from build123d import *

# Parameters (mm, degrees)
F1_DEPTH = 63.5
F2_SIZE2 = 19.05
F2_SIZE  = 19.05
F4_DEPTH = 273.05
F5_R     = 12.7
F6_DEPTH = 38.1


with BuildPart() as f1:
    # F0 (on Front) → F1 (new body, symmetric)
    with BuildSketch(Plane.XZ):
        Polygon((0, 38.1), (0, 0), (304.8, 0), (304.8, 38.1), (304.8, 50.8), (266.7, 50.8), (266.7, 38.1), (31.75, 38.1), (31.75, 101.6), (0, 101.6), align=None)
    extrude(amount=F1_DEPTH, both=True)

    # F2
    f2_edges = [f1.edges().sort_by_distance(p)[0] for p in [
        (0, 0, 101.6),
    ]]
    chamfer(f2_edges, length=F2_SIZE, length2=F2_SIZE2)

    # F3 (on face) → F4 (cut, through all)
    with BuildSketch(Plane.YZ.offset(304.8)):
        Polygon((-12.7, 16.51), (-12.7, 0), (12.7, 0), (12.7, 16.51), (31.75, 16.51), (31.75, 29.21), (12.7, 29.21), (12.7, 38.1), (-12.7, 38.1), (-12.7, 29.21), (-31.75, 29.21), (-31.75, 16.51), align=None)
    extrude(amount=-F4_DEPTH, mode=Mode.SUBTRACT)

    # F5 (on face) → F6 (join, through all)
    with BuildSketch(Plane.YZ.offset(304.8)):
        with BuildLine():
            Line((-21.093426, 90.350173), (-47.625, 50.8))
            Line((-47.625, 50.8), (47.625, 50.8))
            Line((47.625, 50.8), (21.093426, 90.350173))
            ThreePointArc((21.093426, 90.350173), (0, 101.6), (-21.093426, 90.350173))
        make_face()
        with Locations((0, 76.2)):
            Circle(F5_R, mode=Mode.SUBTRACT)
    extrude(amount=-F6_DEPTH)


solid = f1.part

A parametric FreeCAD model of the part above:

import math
import FreeCAD as App
import Part
import Sketcher
from FreeCAD import Vector
Q = App.Units.Quantity


def edges_at(feature, points):
    """Names of the edges that pass closest to the given points."""
    edges = feature.Shape.Edges
    near = lambda p: min(range(len(edges)), key=lambda i: edges[i].distToShape(Part.Vertex(*p))[0])
    return sorted({f"Edge{near(p) + 1}" for p in points})

doc = App.newDocument("Part")
body = doc.addObject("PartDesign::Body", "Body")

sketch1 = body.newObject("Sketcher::SketchObject", "Sketch")
sketch1.AttachmentSupport = (doc.getObject("XZ_Plane"), [""])
sketch1.MapMode = "FlatFace"
sketch1.addGeometry([
    Part.LineSegment(Vector(0, 0, 0), Vector(305, 0, 0)),
    Part.LineSegment(Vector(305, 0, 0), Vector(305, 51, 0)),
    Part.LineSegment(Vector(305, 51, 0), Vector(267, 51, 0)),
    Part.LineSegment(Vector(267, 51, 0), Vector(267, 38, 0)),
    Part.LineSegment(Vector(267, 38, 0), Vector(32, 38, 0)),
    Part.LineSegment(Vector(32, 38, 0), Vector(32, 102, 0)),
    Part.LineSegment(Vector(32, 102, 0), Vector(0, 102, 0)),
    Part.LineSegment(Vector(0, 102, 0), Vector(0, 0, 0)),
], False)
sketch1.addConstraint([
    Sketcher.Constraint("Coincident", 0, 2, 1, 1),
    Sketcher.Constraint("Coincident", 1, 2, 2, 1),
    Sketcher.Constraint("Coincident", 2, 2, 3, 1),
    Sketcher.Constraint("Coincident", 3, 2, 4, 1),
    Sketcher.Constraint("Coincident", 4, 2, 5, 1),
    Sketcher.Constraint("Coincident", 5, 2, 6, 1),
    Sketcher.Constraint("Coincident", 6, 2, 7, 1),
    Sketcher.Constraint("Coincident", 7, 2, 0, 1),
    Sketcher.Constraint("Horizontal", 0),
    Sketcher.Constraint("Vertical", 1),
    Sketcher.Constraint("Horizontal", 2),
    Sketcher.Constraint("Vertical", 3),
    Sketcher.Constraint("Horizontal", 4),
    Sketcher.Constraint("Vertical", 5),
    Sketcher.Constraint("Horizontal", 6),
    Sketcher.Constraint("Vertical", 7),
    Sketcher.Constraint("Coincident", 7, 2, -1, 1),
    Sketcher.Constraint("DistanceX", 0, 1, 0, 2, Q("12 in")),
    Sketcher.Constraint("DistanceY", 1, 1, 1, 2, Q("2 in")),
    Sketcher.Constraint("DistanceY", 7, 2, 7, 1, Q("4 in")),
    Sketcher.Constraint("DistanceX", 2, 2, 2, 1, Q("1.5 in")),
    Sketcher.Constraint("DistanceY", 3, 2, 3, 1, Q("0.5 in")),
    Sketcher.Constraint("DistanceX", 4, 2, 4, 1, Q("9.25 in")),
])
pad1 = body.newObject("PartDesign::Pad", "Pad")
pad1.Profile = sketch1
pad1.Length = Q("5 in")
pad1.Midplane = True
doc.recompute()

chamfer = body.newObject("PartDesign::Chamfer", "Chamfer")
chamfer.Base = (pad1, edges_at(pad1, [(0, 0, 101.6)]))
chamfer.ChamferType = "Two distances"
chamfer.Size = Q("0.75 in")
chamfer.Size2 = Q("0.75 in")

sketch2 = body.newObject("Sketcher::SketchObject", "Sketch001")
sketch2.AttachmentSupport = (doc.getObject("YZ_Plane"), [""])
sketch2.MapMode = "FlatFace"
sketch2.AttachmentOffset = App.Placement(Vector(0, 0, 12 * 25.4), App.Rotation())
sketch2.addGeometry([
    Part.LineSegment(Vector(-13, 17, 0), Vector(-13, 0, 0)),
    Part.LineSegment(Vector(-13, 0, 0), Vector(13, 0, 0)),
    Part.LineSegment(Vector(13, 0, 0), Vector(13, 17, 0)),
    Part.LineSegment(Vector(13, 17, 0), Vector(32, 17, 0)),
    Part.LineSegment(Vector(32, 17, 0), Vector(32, 29, 0)),
    Part.LineSegment(Vector(32, 29, 0), Vector(13, 29, 0)),
    Part.LineSegment(Vector(13, 29, 0), Vector(13, 38, 0)),
    Part.LineSegment(Vector(13, 38, 0), Vector(-13, 38, 0)),
    Part.LineSegment(Vector(-13, 38, 0), Vector(-13, 29, 0)),
    Part.LineSegment(Vector(-13, 29, 0), Vector(-32, 29, 0)),
    Part.LineSegment(Vector(-32, 29, 0), Vector(-32, 17, 0)),
    Part.LineSegment(Vector(-32, 17, 0), Vector(-13, 17, 0)),
], False)
sketch2.addConstraint([
    Sketcher.Constraint("Coincident", 0, 2, 1, 1),
    Sketcher.Constraint("Coincident", 1, 2, 2, 1),
    Sketcher.Constraint("Coincident", 2, 2, 3, 1),
    Sketcher.Constraint("Coincident", 3, 2, 4, 1),
    Sketcher.Constraint("Coincident", 4, 2, 5, 1),
    Sketcher.Constraint("Coincident", 5, 2, 6, 1),
    Sketcher.Constraint("Coincident", 6, 2, 7, 1),
    Sketcher.Constraint("Coincident", 7, 2, 8, 1),
    Sketcher.Constraint("Coincident", 8, 2, 9, 1),
    Sketcher.Constraint("Coincident", 9, 2, 10, 1),
    Sketcher.Constraint("Coincident", 10, 2, 11, 1),
    Sketcher.Constraint("Coincident", 11, 2, 0, 1),
    Sketcher.Constraint("Vertical", 0),
    Sketcher.Constraint("Horizontal", 1),
    Sketcher.Constraint("Vertical", 2),
    Sketcher.Constraint("Horizontal", 3),
    Sketcher.Constraint("Vertical", 4),
    Sketcher.Constraint("Horizontal", 5),
    Sketcher.Constraint("Vertical", 6),
    Sketcher.Constraint("Horizontal", 7),
    Sketcher.Constraint("Vertical", 8),
    Sketcher.Constraint("Horizontal", 9),
    Sketcher.Constraint("Vertical", 10),
    Sketcher.Constraint("Horizontal", 11),
    Sketcher.Constraint("Symmetric", 0, 2, 1, 2, -1, 1),
    Sketcher.Constraint("Symmetric", 5, 2, 8, 2, -2),
    Sketcher.Constraint("Symmetric", 3, 2, 10, 2, -2),
    Sketcher.Constraint("Vertical", 2, 2, 5, 2),
    Sketcher.Constraint("DistanceX", 1, 1, 1, 2, Q("1 in")),
    Sketcher.Constraint("DistanceY", 4, 1, 4, 2, Q("0.5 in")),
    Sketcher.Constraint("DistanceX", 3, 1, 3, 2, Q("0.75 in")),
    Sketcher.Constraint("DistanceY", 0, 2, 0, 1, Q("0.65 in")),
    Sketcher.Constraint("DistanceY", 6, 1, 6, 2, Q("0.35 in")),
])
pocket1 = body.newObject("PartDesign::Pocket", "Pocket")
pocket1.Profile = sketch2
pocket1.Length = Q("10.75 in")

sketch3 = body.newObject("Sketcher::SketchObject", "Sketch002")
sketch3.AttachmentSupport = (doc.getObject("YZ_Plane"), [""])
sketch3.MapMode = "FlatFace"
sketch3.AttachmentOffset = App.Placement(Vector(0, 0, 12 * 25.4), App.Rotation())
sketch3.addGeometry([
    Part.LineSegment(Vector(-21, 90, 0), Vector(-48, 51, 0)),
    Part.LineSegment(Vector(-48, 51, 0), Vector(48, 51, 0)),
    Part.LineSegment(Vector(48, 51, 0), Vector(21, 90, 0)),
    Part.ArcOfCircle(Part.Circle(Vector(0, 76, 0), Vector(0, 0, 1), 25), math.radians(34), math.radians(146)),
    Part.Circle(Vector(0, 76, 0), Vector(0, 0, 1), 13),
], False)
sketch3.addConstraint([
    Sketcher.Constraint("Coincident", 0, 2, 1, 1),
    Sketcher.Constraint("Coincident", 1, 2, 2, 1),
    Sketcher.Constraint("Tangent", 2, 2, 3, 1),
    Sketcher.Constraint("Tangent", 3, 2, 0, 1),
    Sketcher.Constraint("Horizontal", 1),
    Sketcher.Constraint("Coincident", 4, 3, 3, 3),
    Sketcher.Constraint("Symmetric", 2, 2, 3, 2, -2),
    Sketcher.Constraint("Diameter", 4, Q("1 in")),
    Sketcher.Constraint("Radius", 3, Q("1 in")),
    Sketcher.Constraint("DistanceY", -1, 1, 3, 3, Q("3 in")),
    Sketcher.Constraint("DistanceY", -1, 1, 0, 2, Q("2 in")),
    Sketcher.Constraint("DistanceX", 1, 1, 1, 2, Q("3.75 in")),
])
pad2 = body.newObject("PartDesign::Pad", "Pad001")
pad2.Profile = sketch3
pad2.Length = Q("1.5 in")
pad2.Reversed = True

doc.recompute()
